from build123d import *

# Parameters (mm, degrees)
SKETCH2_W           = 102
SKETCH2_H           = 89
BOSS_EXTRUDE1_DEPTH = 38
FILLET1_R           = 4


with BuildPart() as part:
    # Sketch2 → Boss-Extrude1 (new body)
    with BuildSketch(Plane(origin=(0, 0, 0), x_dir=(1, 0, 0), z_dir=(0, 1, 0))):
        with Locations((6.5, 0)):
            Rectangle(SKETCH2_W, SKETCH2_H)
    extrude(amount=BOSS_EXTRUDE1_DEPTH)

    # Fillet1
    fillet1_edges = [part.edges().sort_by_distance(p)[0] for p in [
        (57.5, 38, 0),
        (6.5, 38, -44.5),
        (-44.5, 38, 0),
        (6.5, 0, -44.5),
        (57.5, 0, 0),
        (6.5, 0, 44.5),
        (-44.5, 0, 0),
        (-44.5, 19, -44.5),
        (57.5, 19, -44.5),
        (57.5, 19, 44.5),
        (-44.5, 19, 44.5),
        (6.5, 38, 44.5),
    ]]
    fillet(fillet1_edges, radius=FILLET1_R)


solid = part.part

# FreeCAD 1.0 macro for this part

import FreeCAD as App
import Part
import Sketcher

V = App.Vector

doc = App.newDocument("Part")
body = doc.addObject("PartDesign::Body", "Body")

sketch1 = doc.addObject("Sketcher::SketchObject", "Sketch")
body.addObject(sketch1)
sketch1.AttachmentSupport = (doc.XZ_Plane, [""])
sketch1.MapMode = "FlatFace"
sketch1.addGeometry(Part.LineSegment(V(-44.5, -44.5, 0), V(-44.5, 44.5, 0)), False)
sketch1.addGeometry(Part.LineSegment(V(-44.5, 44.5, 0), V(57.5, 44.5, 0)), False)
sketch1.addGeometry(Part.LineSegment(V(57.5, 44.5, 0), V(57.5, -44.5, 0)), False)
sketch1.addGeometry(Part.LineSegment(V(57.5, -44.5, 0), V(-44.5, -44.5, 0)), False)
sketch1.addConstraint(Sketcher.Constraint("Coincident", 0, 2, 1, 1))
sketch1.addConstraint(Sketcher.Constraint("Coincident", 1, 2, 2, 1))
sketch1.addConstraint(Sketcher.Constraint("Coincident", 2, 2, 3, 1))
sketch1.addConstraint(Sketcher.Constraint("Coincident", 3, 2, 0, 1))
sketch1.addConstraint(Sketcher.Constraint("Vertical", 0))
sketch1.addConstraint(Sketcher.Constraint("Horizontal", 1))
sketch1.addConstraint(Sketcher.Constraint("Vertical", 2))
sketch1.addConstraint(Sketcher.Constraint("Horizontal", 3))
sketch1.addConstraint(Sketcher.Constraint("DistanceX", 1, 1, 1, 2, 102.0))
sketch1.addConstraint(Sketcher.Constraint("DistanceY", 0, 1, 0, 2, 89.0))
sketch1.addConstraint(Sketcher.Constraint("DistanceX", 0, 2, -1, 1, 44.5))
sketch1.addConstraint(Sketcher.Constraint("DistanceY", -1, 1, 0, 2, 44.5))
pad1 = doc.addObject("PartDesign::Pad", "Pad")
body.addObject(pad1)
pad1.Profile = sketch1
pad1.Length = 38
pad1.Reversed = True
doc.recompute()

fillet = doc.addObject("PartDesign::Fillet", "Fillet")
body.addObject(fillet)
fillet.Base = (pad1, ["Edge1"])
fillet.UseAllEdges = True
fillet.Radius = 4

doc.recompute()
